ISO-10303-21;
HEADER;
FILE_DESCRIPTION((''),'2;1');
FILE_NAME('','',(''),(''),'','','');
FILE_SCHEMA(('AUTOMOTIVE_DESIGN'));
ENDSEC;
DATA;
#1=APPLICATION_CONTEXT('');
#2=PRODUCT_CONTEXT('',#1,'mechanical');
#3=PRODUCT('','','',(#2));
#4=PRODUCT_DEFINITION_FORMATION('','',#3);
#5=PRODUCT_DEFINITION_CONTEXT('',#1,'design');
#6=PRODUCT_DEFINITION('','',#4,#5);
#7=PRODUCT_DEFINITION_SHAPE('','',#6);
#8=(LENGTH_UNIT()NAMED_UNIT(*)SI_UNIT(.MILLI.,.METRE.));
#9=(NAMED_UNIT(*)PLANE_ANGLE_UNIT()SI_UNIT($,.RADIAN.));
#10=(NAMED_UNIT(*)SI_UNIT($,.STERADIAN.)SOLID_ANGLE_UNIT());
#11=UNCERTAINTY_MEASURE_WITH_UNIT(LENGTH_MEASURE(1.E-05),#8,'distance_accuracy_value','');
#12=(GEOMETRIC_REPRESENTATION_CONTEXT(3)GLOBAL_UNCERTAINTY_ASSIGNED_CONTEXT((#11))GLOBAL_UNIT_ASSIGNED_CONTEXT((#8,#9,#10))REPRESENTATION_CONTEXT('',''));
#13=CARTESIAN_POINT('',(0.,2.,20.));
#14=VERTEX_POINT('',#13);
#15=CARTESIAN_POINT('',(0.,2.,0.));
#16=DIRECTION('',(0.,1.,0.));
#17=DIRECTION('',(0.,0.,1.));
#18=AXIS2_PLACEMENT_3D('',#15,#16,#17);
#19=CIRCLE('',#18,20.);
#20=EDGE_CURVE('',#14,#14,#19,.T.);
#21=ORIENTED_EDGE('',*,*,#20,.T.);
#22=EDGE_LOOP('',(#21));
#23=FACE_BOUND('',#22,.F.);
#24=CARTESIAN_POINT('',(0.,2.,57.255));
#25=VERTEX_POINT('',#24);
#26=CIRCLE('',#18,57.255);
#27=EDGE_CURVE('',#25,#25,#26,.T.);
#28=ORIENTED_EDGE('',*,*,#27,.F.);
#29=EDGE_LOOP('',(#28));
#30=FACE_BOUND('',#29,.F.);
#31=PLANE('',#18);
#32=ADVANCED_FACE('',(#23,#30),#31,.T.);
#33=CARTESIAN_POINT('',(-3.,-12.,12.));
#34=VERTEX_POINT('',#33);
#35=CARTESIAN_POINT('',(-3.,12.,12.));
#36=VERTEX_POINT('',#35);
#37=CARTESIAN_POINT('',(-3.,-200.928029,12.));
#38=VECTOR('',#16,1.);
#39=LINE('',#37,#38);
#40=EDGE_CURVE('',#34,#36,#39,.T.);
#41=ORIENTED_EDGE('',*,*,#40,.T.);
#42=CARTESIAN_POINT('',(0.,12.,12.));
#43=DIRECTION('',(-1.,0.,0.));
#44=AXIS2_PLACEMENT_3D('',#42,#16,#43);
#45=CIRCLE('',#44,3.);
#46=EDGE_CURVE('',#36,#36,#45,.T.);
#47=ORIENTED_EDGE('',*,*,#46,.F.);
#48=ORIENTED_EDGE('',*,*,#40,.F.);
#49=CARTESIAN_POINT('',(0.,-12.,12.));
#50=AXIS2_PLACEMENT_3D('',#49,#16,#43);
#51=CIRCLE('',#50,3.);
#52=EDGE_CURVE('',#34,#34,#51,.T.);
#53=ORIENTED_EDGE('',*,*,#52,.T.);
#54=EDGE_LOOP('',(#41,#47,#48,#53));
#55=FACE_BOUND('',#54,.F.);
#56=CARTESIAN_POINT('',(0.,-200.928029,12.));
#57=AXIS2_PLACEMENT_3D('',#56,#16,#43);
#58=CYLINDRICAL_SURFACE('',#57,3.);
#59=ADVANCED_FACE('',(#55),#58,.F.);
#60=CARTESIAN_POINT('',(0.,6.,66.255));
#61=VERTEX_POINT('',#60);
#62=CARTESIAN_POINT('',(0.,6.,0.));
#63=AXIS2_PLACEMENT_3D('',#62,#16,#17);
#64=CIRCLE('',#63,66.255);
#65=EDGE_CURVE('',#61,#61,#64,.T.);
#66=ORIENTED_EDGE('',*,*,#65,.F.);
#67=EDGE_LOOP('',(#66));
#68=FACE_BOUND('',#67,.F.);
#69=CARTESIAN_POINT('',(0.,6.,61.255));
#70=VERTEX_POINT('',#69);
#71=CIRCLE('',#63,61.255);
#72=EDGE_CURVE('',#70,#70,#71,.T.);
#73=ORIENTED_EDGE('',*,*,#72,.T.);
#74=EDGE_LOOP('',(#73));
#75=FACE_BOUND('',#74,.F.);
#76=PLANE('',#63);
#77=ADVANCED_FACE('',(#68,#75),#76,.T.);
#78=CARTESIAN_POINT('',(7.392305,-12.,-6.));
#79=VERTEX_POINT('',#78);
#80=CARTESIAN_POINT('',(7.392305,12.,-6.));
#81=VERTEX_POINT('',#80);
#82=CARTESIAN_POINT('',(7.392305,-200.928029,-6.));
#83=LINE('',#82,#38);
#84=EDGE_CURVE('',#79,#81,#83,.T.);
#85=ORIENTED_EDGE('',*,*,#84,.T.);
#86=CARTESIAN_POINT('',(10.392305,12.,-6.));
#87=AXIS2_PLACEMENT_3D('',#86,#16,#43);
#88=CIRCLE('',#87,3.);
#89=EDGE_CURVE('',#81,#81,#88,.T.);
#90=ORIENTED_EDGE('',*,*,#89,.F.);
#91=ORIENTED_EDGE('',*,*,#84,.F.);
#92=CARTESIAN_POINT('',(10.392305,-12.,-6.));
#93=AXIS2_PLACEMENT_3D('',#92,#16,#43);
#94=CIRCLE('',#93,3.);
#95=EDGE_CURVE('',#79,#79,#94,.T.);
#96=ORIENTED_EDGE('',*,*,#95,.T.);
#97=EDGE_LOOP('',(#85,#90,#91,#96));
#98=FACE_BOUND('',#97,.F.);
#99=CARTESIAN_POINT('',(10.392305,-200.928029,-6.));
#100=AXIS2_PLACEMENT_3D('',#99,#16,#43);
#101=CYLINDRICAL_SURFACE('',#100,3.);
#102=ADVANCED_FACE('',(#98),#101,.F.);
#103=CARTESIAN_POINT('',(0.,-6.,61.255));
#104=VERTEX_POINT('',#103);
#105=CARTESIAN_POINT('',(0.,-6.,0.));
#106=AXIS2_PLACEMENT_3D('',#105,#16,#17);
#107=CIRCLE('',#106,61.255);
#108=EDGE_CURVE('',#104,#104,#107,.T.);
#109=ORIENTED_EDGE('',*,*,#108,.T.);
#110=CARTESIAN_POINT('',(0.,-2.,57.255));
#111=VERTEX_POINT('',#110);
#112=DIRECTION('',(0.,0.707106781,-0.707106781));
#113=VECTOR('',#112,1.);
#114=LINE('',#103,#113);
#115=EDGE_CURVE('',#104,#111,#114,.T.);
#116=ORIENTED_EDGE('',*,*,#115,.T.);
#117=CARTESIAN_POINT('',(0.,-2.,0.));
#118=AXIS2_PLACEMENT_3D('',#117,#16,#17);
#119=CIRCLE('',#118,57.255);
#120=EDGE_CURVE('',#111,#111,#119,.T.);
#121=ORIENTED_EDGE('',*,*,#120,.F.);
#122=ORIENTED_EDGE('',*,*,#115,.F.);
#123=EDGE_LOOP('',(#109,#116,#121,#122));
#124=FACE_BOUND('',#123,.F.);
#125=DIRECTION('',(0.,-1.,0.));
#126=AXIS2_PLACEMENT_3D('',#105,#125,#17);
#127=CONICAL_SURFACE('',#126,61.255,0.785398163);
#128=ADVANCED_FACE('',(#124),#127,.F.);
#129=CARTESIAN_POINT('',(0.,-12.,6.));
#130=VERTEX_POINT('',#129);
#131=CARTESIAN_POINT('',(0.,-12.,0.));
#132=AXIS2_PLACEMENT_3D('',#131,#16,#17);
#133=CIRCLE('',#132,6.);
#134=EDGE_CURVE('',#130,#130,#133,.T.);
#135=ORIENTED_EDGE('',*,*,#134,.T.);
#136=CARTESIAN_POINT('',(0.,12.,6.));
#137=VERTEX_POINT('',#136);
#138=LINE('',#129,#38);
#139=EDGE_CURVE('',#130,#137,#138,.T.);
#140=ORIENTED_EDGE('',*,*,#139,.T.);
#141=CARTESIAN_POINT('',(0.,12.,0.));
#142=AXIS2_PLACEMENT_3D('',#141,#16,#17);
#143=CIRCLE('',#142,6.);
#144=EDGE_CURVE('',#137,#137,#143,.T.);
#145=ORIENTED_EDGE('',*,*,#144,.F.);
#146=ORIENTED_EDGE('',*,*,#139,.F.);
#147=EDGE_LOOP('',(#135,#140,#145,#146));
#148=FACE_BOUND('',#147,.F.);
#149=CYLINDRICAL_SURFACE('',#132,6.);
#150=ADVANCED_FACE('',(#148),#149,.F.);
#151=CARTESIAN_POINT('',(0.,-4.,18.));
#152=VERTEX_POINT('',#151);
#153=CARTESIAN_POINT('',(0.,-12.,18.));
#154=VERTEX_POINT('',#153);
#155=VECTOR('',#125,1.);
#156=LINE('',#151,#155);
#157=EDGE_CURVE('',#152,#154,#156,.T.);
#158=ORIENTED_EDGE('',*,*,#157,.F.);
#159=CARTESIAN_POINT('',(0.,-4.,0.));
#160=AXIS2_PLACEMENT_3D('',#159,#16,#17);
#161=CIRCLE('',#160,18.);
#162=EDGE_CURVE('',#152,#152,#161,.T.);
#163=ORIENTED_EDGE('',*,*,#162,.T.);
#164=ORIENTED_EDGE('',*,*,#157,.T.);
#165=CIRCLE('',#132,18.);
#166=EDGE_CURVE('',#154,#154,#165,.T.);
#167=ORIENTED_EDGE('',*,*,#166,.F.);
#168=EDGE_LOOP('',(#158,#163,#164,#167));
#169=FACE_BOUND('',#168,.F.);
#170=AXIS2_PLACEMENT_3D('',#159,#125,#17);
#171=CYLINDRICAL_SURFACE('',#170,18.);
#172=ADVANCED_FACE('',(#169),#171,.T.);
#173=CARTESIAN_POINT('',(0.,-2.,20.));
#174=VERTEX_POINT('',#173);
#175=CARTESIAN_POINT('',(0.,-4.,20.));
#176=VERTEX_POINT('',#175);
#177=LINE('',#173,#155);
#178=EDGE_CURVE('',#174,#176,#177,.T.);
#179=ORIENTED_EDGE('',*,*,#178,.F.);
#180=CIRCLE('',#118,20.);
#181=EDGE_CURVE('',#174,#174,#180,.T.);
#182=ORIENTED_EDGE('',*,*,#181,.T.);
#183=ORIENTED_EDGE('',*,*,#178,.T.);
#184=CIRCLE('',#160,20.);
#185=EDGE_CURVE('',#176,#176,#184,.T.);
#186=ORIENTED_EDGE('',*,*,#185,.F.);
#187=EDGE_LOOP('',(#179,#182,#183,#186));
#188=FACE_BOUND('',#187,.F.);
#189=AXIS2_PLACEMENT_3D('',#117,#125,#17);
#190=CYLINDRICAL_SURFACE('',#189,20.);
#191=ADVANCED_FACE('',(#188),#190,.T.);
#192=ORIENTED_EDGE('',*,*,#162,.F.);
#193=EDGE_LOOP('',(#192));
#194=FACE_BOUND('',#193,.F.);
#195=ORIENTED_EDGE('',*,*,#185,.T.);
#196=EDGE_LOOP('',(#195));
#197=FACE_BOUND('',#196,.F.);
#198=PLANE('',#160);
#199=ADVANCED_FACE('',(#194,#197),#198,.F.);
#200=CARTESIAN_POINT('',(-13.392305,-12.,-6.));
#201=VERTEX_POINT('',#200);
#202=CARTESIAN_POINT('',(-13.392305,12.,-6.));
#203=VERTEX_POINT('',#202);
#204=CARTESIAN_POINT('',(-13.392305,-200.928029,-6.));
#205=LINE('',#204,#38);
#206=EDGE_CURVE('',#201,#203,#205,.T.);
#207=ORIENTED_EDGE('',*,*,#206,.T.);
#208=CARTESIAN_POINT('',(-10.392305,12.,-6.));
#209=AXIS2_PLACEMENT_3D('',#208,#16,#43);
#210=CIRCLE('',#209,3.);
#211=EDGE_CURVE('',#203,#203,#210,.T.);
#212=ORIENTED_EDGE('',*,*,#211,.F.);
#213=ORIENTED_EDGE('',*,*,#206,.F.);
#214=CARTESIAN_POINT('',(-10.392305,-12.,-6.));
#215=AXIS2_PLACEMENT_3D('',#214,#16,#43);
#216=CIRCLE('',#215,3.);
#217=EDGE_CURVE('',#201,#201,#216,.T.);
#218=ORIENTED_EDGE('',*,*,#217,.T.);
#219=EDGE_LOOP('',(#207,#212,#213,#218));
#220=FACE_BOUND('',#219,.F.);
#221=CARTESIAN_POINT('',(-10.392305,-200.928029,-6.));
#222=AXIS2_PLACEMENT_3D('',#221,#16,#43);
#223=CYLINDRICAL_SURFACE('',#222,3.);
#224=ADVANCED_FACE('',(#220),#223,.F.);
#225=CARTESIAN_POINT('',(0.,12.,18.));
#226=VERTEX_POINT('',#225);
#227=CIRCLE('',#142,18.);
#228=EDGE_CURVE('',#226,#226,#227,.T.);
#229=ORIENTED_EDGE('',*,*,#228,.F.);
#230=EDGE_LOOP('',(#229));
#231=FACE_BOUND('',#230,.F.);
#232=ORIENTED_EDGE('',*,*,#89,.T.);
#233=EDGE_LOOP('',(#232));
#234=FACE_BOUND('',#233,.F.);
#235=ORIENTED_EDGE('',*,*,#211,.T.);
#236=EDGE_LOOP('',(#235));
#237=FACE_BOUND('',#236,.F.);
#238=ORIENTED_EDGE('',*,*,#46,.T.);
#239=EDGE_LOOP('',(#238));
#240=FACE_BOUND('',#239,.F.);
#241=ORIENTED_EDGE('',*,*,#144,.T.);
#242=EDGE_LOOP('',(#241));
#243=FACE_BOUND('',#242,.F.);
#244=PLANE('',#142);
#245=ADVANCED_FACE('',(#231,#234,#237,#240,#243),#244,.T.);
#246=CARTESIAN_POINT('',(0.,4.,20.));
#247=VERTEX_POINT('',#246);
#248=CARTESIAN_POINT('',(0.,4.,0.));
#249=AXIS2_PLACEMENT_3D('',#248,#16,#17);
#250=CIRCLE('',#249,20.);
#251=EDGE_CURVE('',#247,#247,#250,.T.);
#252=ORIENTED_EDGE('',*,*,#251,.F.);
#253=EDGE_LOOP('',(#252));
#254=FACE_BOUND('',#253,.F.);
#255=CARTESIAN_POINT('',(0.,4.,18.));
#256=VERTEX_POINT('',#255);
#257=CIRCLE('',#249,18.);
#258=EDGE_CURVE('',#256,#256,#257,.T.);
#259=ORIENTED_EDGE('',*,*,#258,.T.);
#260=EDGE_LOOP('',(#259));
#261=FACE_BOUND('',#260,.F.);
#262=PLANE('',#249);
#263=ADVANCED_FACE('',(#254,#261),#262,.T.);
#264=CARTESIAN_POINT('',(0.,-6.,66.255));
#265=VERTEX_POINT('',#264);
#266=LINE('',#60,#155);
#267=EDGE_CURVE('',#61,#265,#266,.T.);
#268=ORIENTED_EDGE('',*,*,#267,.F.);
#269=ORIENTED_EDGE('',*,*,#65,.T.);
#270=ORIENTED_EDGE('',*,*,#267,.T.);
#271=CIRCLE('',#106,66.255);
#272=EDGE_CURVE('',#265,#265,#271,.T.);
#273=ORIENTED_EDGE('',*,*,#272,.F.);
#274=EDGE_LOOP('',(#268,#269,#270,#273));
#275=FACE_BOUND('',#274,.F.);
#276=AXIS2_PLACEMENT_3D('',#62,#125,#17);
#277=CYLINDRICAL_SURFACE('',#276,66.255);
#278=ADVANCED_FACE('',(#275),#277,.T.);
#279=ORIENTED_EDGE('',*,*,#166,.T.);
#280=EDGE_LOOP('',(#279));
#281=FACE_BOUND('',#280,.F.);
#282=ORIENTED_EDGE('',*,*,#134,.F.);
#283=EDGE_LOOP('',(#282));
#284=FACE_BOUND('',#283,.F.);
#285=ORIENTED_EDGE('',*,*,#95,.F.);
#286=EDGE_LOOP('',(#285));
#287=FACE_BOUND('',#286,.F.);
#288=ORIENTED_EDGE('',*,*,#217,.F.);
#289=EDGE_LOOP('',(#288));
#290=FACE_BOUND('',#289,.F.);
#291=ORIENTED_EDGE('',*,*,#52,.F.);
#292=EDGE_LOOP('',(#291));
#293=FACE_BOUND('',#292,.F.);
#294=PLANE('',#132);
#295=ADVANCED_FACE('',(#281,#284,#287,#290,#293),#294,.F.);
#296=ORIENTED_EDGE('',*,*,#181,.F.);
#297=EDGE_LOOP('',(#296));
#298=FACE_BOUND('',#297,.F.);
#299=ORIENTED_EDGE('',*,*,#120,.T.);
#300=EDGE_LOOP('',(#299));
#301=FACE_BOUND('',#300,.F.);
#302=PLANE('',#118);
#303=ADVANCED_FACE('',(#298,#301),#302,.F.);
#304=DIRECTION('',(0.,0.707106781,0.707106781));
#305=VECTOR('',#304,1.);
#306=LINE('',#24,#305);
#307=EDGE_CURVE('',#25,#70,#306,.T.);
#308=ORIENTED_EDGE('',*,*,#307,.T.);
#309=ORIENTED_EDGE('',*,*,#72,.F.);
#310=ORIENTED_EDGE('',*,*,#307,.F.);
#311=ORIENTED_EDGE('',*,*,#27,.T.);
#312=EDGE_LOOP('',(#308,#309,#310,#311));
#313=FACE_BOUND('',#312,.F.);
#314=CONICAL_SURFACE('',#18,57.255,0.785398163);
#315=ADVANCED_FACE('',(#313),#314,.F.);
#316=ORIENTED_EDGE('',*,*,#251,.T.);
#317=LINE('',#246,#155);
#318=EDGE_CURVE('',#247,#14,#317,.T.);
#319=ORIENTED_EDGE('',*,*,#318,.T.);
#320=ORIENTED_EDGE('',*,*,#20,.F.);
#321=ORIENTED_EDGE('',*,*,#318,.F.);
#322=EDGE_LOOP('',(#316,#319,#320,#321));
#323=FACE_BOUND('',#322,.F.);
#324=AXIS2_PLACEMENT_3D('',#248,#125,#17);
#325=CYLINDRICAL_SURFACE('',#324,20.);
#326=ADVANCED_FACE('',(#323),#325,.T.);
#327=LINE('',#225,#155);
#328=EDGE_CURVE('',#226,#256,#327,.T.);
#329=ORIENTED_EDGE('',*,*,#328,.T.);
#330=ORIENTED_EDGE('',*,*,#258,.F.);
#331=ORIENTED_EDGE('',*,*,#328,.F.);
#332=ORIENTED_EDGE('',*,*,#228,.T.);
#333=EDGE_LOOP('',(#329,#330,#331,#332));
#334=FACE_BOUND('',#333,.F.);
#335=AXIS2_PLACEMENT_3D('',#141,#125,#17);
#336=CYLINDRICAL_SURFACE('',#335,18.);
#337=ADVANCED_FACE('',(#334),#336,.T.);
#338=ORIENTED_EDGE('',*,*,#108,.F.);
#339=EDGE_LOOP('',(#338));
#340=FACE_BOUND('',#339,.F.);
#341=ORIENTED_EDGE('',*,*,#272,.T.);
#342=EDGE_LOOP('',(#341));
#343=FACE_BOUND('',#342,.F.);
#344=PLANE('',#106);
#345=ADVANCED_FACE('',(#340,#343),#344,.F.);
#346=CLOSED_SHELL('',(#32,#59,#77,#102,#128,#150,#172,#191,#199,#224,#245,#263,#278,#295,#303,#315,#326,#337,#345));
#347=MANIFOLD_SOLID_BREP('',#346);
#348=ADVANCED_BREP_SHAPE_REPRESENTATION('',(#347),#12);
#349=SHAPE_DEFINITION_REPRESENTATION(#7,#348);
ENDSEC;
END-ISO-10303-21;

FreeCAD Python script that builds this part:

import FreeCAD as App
import Part
import Sketcher
Q = App.Units.Quantity


def add_polygon(sketch, points):
    """Adds a closed chain of lines whose ends are joined by coincident constraints."""
    first, n = sketch.GeometryCount, len(points)
    for a, b in zip(points, points[1:] + points[:1]):
        sketch.addGeometry(Part.LineSegment(App.Vector(*a, 0), App.Vector(*b, 0)), False)
    for i in range(n):
        sketch.addConstraint(Sketcher.Constraint("Coincident", first + i, 2, first + (i + 1) % n, 1))

doc = App.newDocument("Part")
body = doc.addObject("PartDesign::Body", "Body")

# Sketch on YZ plane
sketch1 = body.newObject("Sketcher::SketchObject", "Sketch")
sketch1.AttachmentSupport = (doc.getObject("YZ_Plane"), [""])
sketch1.MapMode = "FlatFace"
add_polygon(sketch1, [(6, 66.255), (-6, 66.255), (-6, 61.255), (-2, 57.255), (-2, 20), (-4, 20), (-4, 18), (-12, 18), (-12, 6), (12, 6), (12, 18), (4, 18), (4, 20), (2, 20), (2, 57.255), (6, 61.255)])  # lines 0-15
sketch1.addConstraint([
    Sketcher.Constraint("Horizontal", 0),
    Sketcher.Constraint("Vertical", 1),
    Sketcher.Constraint("Vertical", 3),
    Sketcher.Constraint("Horizontal", 4),
    Sketcher.Constraint("Vertical", 5),
    Sketcher.Constraint("Horizontal", 6),
    Sketcher.Constraint("Vertical", 7),
    Sketcher.Constraint("Horizontal", 8),
    Sketcher.Constraint("Vertical", 9),
    Sketcher.Constraint("Horizontal", 10),
    Sketcher.Constraint("Vertical", 11),
    Sketcher.Constraint("Horizontal", 12),
    Sketcher.Constraint("Vertical", 13),
    Sketcher.Constraint("Vertical", 15),
    Sketcher.Constraint("Symmetric", 6, 2, 9, 2, -2),
    Sketcher.Constraint("Symmetric", 4, 2, 11, 2, -2),
    Sketcher.Constraint("Symmetric", 2, 2, 13, 2, -2),
    Sketcher.Constraint("Symmetric", 1, 2, 14, 2, -2),
    Sketcher.Constraint("Perpendicular", 2, 14),
    Sketcher.Constraint("Equal", 12, 5),
    Sketcher.Constraint("Equal", 0, 7),
    Sketcher.Constraint("DistanceX", 0, 2, 0, 1, Q("12 mm")),
    Sketcher.Constraint("DistanceX", 4, 2, 4, 1, Q("2 mm")),
    Sketcher.Constraint("DistanceX", 6, 2, 6, 1, Q("8 mm")),
    Sketcher.Constraint("DistanceX", 8, 1, 8, 2, Q("24 mm")),
    Sketcher.Constraint("DistanceY", 1, 2, 1, 1, Q("5 mm")),
    Sketcher.Constraint("DistanceY", -1, 1, 3, 2, Q("20 mm")),
    Sketcher.Constraint("DistanceY", 3, 2, 3, 1, Q("37.255 mm")),
])
revolution = body.newObject("PartDesign::Revolution", "Revolution")
revolution.Profile = sketch1
revolution.ReferenceAxis = (sketch1, ["H_Axis"])
revolution.Angle = 360

# Sketch on XZ plane
sketch2 = body.newObject("Sketcher::SketchObject", "Sketch001")
sketch2.AttachmentSupport = (doc.getObject("XZ_Plane"), [""])
sketch2.MapMode = "FlatFace"
sketch2.AttachmentOffset = App.Placement(App.Vector(0, 0, 12), App.Rotation())
sketch2.addGeometry([
    Part.Circle(App.Vector(0, 12, 0), App.Vector(0, 0, 1), 3),
    Part.Circle(App.Vector(10.392305, -6, 0), App.Vector(0, 0, 1), 3),
    Part.Circle(App.Vector(-10.392305, -6, 0), App.Vector(0, 0, 1), 3),
], False)
sketch2.addConstraint([
    Sketcher.Constraint("Equal", 0, 1),
    Sketcher.Constraint("Equal", 1, 2),
    Sketcher.Constraint("Symmetric", 1, 3, 2, 3, -2),
    Sketcher.Constraint("PointOnObject", 0, 3, -2),
    Sketcher.Constraint("Diameter", 0, Q("6 mm")),
    Sketcher.Constraint("DistanceY", -1, 1, 0, 3, Q("12 mm")),
    Sketcher.Constraint("DistanceY", 1, 3, -1, 1, Q("6 mm")),
    Sketcher.Constraint("DistanceX", 2, 3, 1, 3, Q("20.78461 mm")),
])
doc.recompute()
hole = body.newObject("PartDesign::Hole", "Hole")
hole.Profile = sketch2
hole.ThreadType = "None"
hole.Diameter = 6
hole.DepthType = "ThroughAll"

doc.recompute()
